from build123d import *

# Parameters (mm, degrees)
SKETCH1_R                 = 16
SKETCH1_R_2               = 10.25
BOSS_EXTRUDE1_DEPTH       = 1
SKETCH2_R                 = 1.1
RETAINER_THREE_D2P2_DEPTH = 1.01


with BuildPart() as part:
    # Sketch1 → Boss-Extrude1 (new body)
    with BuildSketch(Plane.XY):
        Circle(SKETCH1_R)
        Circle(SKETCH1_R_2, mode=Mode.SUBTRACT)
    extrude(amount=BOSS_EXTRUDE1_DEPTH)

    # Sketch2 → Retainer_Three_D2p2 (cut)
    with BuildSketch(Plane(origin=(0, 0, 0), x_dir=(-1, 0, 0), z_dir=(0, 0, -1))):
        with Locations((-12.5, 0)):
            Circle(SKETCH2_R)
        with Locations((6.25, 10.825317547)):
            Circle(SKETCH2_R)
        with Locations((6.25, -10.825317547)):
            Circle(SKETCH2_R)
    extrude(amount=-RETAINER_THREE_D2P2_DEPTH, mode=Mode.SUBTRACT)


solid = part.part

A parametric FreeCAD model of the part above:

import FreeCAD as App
import Part
import Sketcher

doc = App.newDocument("Part")
params = doc.addObject("Spreadsheet::Sheet", "Params")
for row, (alias, value) in enumerate([
    ("sketch1_diameter", "32 mm"),
    ("sketch1_diameter2", "20.5 mm"),
    ("pad1_length", "1 mm"),
    ("sketch2_diameter", "2.2 mm"),
    ("pocket1_length", "1.01 mm"),
], start=1):
    params.set(f"A{row}", alias)
    params.set(f"B{row}", "=" + value)
    params.setAlias(f"B{row}", alias)

body = doc.addObject("PartDesign::Body", "Body")

# Sketch on XY plane
sketch1 = body.newObject("Sketcher::SketchObject", "Sketch")
sketch1.AttachmentSupport = (doc.getObject("XY_Plane"), [""])
sketch1.MapMode = "FlatFace"
sketch1.addGeometry([
    Part.Circle(App.Vector(0, 0, 0), App.Vector(0, 0, 1), 16),
    Part.Circle(App.Vector(0, 0, 0), App.Vector(0, 0, 1), 10),
], False)
sketch1.addConstraint([
    Sketcher.Constraint("Coincident", 0, 3, -1, 1),
    Sketcher.Constraint("Coincident", 1, 3, -1, 1),
    Sketcher.Constraint("Diameter", 0, 32.0),
    Sketcher.Constraint("Diameter", 1, 20.5),
])
sketch1.setExpression("Constraints[2]", "Params.sketch1_diameter")
sketch1.setExpression("Constraints[3]", "Params.sketch1_diameter2")
pad1 = body.newObject("PartDesign::Pad", "Pad")
pad1.Profile = sketch1
pad1.setExpression("Length", "Params.pad1_length")

# Sketch on XY plane
sketch2 = body.newObject("Sketcher::SketchObject", "Sketch001")
sketch2.AttachmentSupport = (doc.getObject("XY_Plane"), [""])
sketch2.MapMode = "FlatFace"
sketch2.addGeometry([
    Part.Circle(App.Vector(12.5, 0, 0), App.Vector(0, 0, 1), 1.1),
    Part.Circle(App.Vector(-6.2, 10.8, 0), App.Vector(0, 0, 1), 1.1),
    Part.Circle(App.Vector(-6.2, -10.8, 0), App.Vector(0, 0, 1), 1.1),
], False)
sketch2.addConstraint([
    Sketcher.Constraint("Equal", 0, 1),
    Sketcher.Constraint("Equal", 1, 2),
    Sketcher.Constraint("Symmetric", 1, 3, 2, 3, -1),
    Sketcher.Constraint("PointOnObject", 0, 3, -1),
    Sketcher.Constraint("Diameter", 0, 2.2),
    Sketcher.Constraint("DistanceX", -1, 1, 0, 3, 12.5),
    Sketcher.Constraint("DistanceX", 1, 3, -1, 1, 6.25),
    Sketcher.Constraint("DistanceY", -1, 1, 1, 3, 10.825318),
])
sketch2.setExpression("Constraints[4]", "Params.sketch2_diameter")
pocket1 = body.newObject("PartDesign::Pocket", "Pocket")
pocket1.Profile = sketch2
pocket1.setExpression("Length", "Params.pocket1_length")
pocket1.Reversed = True

doc.recompute()
